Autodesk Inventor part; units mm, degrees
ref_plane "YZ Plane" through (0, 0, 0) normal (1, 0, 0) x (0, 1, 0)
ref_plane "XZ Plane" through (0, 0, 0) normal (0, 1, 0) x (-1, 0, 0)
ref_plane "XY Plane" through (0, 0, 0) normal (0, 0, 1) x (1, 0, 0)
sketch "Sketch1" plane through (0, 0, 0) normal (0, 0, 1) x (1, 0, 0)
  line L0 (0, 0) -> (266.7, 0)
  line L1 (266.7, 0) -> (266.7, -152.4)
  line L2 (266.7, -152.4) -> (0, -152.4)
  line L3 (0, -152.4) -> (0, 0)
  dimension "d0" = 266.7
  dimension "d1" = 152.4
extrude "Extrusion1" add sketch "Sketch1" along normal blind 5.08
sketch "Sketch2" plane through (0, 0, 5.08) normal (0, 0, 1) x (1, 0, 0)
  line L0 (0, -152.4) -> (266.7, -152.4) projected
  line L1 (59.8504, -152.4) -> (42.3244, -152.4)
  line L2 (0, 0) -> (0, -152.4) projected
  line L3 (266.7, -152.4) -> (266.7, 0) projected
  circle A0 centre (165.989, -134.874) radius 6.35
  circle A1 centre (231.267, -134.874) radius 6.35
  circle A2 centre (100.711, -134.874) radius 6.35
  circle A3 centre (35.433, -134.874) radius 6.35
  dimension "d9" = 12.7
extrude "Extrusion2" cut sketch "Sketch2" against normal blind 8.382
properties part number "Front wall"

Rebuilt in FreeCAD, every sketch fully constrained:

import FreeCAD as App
import Part
import Sketcher
Q = App.Units.Quantity

doc = App.newDocument("Part")
body = doc.addObject("PartDesign::Body", "Body")

# Sketch on XY plane
sketch1 = body.newObject("Sketcher::SketchObject", "Sketch")
sketch1.AttachmentSupport = (doc.getObject("XY_Plane"), [""])
sketch1.MapMode = "FlatFace"
sketch1.addGeometry([
    Part.LineSegment(App.Vector(266.7, 0, 0), App.Vector(0, 0, 0)),
    Part.LineSegment(App.Vector(0, 0, 0), App.Vector(0, -152.4, 0)),
    Part.LineSegment(App.Vector(0, -152.4, 0), App.Vector(266.7, -152.4, 0)),
    Part.LineSegment(App.Vector(266.7, -152.4, 0), App.Vector(266.7, 0, 0)),
], False)
sketch1.addConstraint([
    Sketcher.Constraint("Coincident", 0, 2, 1, 1),
    Sketcher.Constraint("Coincident", 1, 2, 2, 1),
    Sketcher.Constraint("Coincident", 2, 2, 3, 1),
    Sketcher.Constraint("Coincident", 3, 2, 0, 1),
    Sketcher.Constraint("Horizontal", 0),
    Sketcher.Constraint("Vertical", 1),
    Sketcher.Constraint("Horizontal", 2),
    Sketcher.Constraint("Vertical", 3),
    Sketcher.Constraint("Coincident", 0, 2, -1, 1),
    Sketcher.Constraint("DistanceY", 1, 2, 1, 1, Q("6 in")),
    Sketcher.Constraint("DistanceX", 0, 2, 0, 1, Q("10.5 in")),
])
pad1 = body.newObject("PartDesign::Pad", "Pad")
pad1.Profile = sketch1
pad1.Length = Q("0.2 in")

# Sketch on XY plane
sketch2 = body.newObject("Sketcher::SketchObject", "Sketch001")
sketch2.AttachmentSupport = (doc.getObject("XY_Plane"), [""])
sketch2.MapMode = "FlatFace"
sketch2.AttachmentOffset = App.Placement(App.Vector(0, 0, 0.2 * 25.4), App.Rotation())
sketch2.addGeometry([
    Part.Circle(App.Vector(165.989, -134.874, 0), App.Vector(0, 0, 1), 6.35),
    Part.Circle(App.Vector(231.267, -134.874, 0), App.Vector(0, 0, 1), 6.35),
    Part.Circle(App.Vector(100.711, -134.874, 0), App.Vector(0, 0, 1), 6.35),
    Part.Circle(App.Vector(35.433, -134.874, 0), App.Vector(0, 0, 1), 6.35),
], False)
sketch2.addConstraint([
    Sketcher.Constraint("Equal", 0, 1),
    Sketcher.Constraint("Equal", 1, 2),
    Sketcher.Constraint("Equal", 2, 3),
    Sketcher.Constraint("Horizontal", 0, 3, 1, 3),
    Sketcher.Constraint("Horizontal", 1, 3, 2, 3),
    Sketcher.Constraint("Horizontal", 2, 3, 3, 3),
    Sketcher.Constraint("Diameter", 0, Q("0.5 in")),
    Sketcher.Constraint("DistanceY", 0, 3, -1, 1, Q("5.31 in")),
    Sketcher.Constraint("DistanceX", 0, 3, 1, 3, Q("2.57 in")),
    Sketcher.Constraint("DistanceX", 2, 3, 0, 3, Q("2.57 in")),
    Sketcher.Constraint("DistanceX", 3, 3, 2, 3, Q("2.57 in")),
    Sketcher.Constraint("DistanceX", -1, 1, 0, 3, Q("6.535 in")),
])
pocket1 = body.newObject("PartDesign::Pocket", "Pocket")
pocket1.Profile = sketch2
pocket1.Length = Q("0.33 in")

doc.recompute()
